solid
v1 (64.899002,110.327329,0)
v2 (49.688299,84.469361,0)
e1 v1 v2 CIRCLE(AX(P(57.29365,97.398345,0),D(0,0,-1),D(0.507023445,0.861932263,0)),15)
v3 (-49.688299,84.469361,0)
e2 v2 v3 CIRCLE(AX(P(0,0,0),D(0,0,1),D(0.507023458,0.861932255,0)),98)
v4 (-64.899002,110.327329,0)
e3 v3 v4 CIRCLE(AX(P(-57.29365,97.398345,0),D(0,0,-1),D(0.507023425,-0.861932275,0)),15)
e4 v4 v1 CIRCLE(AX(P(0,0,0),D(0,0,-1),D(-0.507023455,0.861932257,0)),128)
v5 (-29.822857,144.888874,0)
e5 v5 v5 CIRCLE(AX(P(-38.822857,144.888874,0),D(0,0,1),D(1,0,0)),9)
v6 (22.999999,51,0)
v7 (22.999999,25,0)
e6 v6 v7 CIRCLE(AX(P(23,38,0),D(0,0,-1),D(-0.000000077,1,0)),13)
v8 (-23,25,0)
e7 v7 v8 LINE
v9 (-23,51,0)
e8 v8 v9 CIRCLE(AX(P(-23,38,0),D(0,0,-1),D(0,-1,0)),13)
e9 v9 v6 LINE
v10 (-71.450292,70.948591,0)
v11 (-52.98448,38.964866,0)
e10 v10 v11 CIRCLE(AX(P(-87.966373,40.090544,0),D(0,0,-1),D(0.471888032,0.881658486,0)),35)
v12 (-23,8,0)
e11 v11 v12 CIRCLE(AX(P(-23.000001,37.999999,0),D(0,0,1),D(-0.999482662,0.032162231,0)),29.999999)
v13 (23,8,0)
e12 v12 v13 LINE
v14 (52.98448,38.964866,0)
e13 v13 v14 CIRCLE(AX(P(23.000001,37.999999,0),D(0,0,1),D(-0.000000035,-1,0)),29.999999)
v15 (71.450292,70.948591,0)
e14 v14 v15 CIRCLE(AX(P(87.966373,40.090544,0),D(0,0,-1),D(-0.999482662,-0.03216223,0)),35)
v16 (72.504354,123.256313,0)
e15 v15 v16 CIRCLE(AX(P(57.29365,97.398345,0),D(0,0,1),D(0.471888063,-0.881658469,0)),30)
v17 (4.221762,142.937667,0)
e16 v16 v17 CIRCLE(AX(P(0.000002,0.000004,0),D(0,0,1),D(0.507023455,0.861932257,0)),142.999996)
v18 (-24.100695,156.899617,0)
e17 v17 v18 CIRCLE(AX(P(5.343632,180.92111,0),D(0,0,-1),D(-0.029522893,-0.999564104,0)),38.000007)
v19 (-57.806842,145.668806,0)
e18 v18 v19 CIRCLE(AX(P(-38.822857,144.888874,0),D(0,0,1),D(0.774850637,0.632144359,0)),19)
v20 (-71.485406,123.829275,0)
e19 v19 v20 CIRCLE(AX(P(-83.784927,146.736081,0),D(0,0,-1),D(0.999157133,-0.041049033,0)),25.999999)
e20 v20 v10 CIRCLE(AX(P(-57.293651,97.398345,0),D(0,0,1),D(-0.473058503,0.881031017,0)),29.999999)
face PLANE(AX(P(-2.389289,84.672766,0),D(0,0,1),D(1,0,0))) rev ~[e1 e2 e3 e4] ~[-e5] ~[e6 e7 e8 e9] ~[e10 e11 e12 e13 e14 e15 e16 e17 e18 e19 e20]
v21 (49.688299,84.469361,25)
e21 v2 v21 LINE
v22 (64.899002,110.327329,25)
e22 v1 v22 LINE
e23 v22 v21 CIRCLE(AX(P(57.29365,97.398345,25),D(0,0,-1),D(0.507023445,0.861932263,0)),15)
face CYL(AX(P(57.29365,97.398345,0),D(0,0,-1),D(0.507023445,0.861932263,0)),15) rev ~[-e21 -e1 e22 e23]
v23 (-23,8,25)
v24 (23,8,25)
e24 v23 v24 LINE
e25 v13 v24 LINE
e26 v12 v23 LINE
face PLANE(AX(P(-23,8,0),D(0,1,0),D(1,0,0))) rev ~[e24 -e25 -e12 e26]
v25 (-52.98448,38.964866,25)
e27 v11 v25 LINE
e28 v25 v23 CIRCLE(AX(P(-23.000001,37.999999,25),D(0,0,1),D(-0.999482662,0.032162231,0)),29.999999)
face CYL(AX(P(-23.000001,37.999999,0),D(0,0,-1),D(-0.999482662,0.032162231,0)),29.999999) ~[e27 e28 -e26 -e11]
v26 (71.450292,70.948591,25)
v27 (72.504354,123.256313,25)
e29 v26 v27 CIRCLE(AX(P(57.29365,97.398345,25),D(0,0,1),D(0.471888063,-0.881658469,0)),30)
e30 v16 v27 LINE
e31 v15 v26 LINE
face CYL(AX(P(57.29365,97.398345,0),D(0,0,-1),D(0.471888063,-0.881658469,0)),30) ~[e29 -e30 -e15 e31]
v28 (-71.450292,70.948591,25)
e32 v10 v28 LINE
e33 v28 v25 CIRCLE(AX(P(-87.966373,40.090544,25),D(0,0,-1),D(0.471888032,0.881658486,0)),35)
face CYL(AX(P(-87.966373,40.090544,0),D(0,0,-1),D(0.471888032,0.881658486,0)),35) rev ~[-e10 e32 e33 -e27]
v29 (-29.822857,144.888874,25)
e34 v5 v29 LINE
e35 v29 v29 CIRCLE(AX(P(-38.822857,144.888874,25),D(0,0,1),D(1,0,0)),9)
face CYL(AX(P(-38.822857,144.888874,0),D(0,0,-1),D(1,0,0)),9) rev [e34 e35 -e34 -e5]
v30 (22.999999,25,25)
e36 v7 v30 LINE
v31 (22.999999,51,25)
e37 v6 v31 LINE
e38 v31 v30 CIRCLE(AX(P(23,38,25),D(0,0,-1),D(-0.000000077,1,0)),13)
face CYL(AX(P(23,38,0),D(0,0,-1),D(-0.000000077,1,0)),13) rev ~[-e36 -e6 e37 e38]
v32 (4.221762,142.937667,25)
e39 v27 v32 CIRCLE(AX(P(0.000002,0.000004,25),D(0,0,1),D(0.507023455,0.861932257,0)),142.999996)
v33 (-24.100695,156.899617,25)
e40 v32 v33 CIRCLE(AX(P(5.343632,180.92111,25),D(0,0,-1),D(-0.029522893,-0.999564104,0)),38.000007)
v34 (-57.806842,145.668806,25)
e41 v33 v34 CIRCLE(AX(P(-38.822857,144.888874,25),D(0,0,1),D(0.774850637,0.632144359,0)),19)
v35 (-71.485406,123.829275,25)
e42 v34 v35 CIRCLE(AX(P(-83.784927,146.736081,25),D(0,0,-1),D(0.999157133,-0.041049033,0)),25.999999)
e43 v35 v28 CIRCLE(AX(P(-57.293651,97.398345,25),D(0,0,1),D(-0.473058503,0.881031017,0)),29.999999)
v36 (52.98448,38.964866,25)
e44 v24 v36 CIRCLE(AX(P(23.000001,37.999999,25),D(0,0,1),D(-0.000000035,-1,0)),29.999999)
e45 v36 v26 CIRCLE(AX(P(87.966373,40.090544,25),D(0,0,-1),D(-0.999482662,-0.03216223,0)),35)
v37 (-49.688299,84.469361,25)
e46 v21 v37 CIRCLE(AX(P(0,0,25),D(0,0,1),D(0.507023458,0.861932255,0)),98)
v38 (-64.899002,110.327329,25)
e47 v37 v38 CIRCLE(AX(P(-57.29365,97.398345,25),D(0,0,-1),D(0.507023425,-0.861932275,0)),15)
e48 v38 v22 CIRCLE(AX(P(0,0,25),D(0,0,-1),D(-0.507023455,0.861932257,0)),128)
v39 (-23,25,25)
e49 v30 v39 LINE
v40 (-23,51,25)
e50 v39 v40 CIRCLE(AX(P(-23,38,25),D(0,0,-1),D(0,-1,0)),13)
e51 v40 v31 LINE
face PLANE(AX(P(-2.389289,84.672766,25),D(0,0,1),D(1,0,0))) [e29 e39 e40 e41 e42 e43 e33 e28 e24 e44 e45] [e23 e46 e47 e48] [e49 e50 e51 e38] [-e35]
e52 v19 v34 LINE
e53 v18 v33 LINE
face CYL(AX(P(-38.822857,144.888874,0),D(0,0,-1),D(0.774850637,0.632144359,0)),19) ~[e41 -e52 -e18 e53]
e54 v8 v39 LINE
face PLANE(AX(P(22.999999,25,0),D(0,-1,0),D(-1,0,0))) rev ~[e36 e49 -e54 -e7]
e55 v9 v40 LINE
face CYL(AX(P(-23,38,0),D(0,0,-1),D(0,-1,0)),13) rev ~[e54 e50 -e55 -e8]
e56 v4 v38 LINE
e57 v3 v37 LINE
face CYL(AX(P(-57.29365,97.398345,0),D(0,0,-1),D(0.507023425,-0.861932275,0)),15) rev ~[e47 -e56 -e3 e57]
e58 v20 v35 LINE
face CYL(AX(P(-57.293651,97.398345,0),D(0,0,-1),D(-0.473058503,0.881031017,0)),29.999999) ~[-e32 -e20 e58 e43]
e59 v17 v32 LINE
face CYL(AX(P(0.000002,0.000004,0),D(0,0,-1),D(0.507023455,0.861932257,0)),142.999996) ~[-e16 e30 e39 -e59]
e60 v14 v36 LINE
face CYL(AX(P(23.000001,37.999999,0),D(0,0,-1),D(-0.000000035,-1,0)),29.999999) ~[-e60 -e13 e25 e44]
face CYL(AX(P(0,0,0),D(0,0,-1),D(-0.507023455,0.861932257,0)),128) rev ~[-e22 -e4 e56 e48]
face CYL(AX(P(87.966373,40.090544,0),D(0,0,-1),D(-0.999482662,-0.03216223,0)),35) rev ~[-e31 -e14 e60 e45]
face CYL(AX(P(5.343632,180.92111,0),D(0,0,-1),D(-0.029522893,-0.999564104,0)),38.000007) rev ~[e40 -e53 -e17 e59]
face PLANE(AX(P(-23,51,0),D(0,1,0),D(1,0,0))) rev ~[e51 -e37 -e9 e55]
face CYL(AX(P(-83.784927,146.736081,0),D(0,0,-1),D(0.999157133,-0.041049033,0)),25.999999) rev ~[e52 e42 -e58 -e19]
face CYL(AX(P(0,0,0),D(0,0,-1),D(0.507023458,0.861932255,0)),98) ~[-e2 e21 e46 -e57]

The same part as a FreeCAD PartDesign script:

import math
import FreeCAD as App
import Part
import Sketcher
from FreeCAD import Vector

doc = App.newDocument("Part")
body = doc.addObject("PartDesign::Body", "Body")

# Sketch on XY plane
sketch1 = doc.addObject("Sketcher::SketchObject", "Sketch")
body.addObject(sketch1)
sketch1.AttachmentSupport = (doc.XY_Plane, [""])
sketch1.MapMode = "FlatFace"
sketch1.addGeometry(Part.ArcOfCircle(Part.Circle(Vector(-38.822857, 144.888874, 0), Vector(0, 0, 1), 19), math.radians(39.208507), math.radians(177.647403)), False)
sketch1.addGeometry(Part.ArcOfCircle(Part.Circle(Vector(-83.784927, 146.736081, 0), Vector(0, 0, 1), 25.999999), math.radians(-61.766985), math.radians(-2.352597)), False)
sketch1.addGeometry(Part.ArcOfCircle(Part.Circle(Vector(-57.293651, 97.398345, 0), Vector(0, 0, 1), 29.999999), math.radians(118.233014), math.radians(241.843077)), False)
sketch1.addGeometry(Part.ArcOfCircle(Part.Circle(Vector(-87.966373, 40.090544, 0), Vector(0, 0, 1), 35), math.radians(-1.843078), math.radians(61.843077)), False)
sketch1.addGeometry(Part.ArcOfCircle(Part.Circle(Vector(-23.000001, 37.999999, 0), Vector(0, 0, 1), 29.999999), math.radians(178.156922), math.radians(270.000002)), False)
sketch1.addGeometry(Part.LineSegment(Vector(-23, 8, 0), Vector(23, 8, 0)), False)
sketch1.addGeometry(Part.ArcOfCircle(Part.Circle(Vector(23.000001, 37.999999, 0), Vector(0, 0, 1), 29.999999), math.radians(-90.000002), math.radians(1.843078)), False)
sketch1.addGeometry(Part.ArcOfCircle(Part.Circle(Vector(87.966373, 40.090544, 0), Vector(0, 0, 1), 35), math.radians(118.156923), math.radians(181.843078)), False)
sketch1.addGeometry(Part.ArcOfCircle(Part.Circle(Vector(57.29365, 97.398345, 0), Vector(0, 0, 1), 30), math.radians(-61.843075), math.radians(59.534233)), False)
sketch1.addGeometry(Part.ArcOfCircle(Part.Circle(Vector(0.000002, 0.000004, 0), Vector(0, 0, 1), 142.999996), math.radians(59.534234), math.radians(88.308222)), False)
sketch1.addGeometry(Part.ArcOfCircle(Part.Circle(Vector(5.343632, 180.92111, 0), Vector(0, 0, 1), 38.000007), math.radians(-140.791487), math.radians(-91.691783)), False)
sketch1.addGeometry(Part.ArcOfCircle(Part.Circle(Vector(-23, 38, 0), Vector(0, 0, 1), 13), math.radians(90), math.radians(270)), False)
sketch1.addGeometry(Part.LineSegment(Vector(-23, 51, 0), Vector(22.999999, 51, 0)), False)
sketch1.addGeometry(Part.ArcOfCircle(Part.Circle(Vector(23, 38, 0), Vector(0, 0, 1), 13), math.radians(-90.000004), math.radians(90.000004)), False)
sketch1.addGeometry(Part.LineSegment(Vector(22.999999, 25, 0), Vector(-23, 25, 0)), False)
sketch1.addGeometry(Part.Circle(Vector(-38.822857, 144.888874, 0), Vector(0, 0, 1), 9), False)
sketch1.addGeometry(Part.ArcOfCircle(Part.Circle(Vector(0, 0, 0), Vector(0, 0, 1), 98), math.radians(59.534234), math.radians(120.465766)), False)
sketch1.addGeometry(Part.ArcOfCircle(Part.Circle(Vector(-57.29365, 97.398345, 0), Vector(0, 0, 1), 15), math.radians(120.465766), math.radians(300.465764)), False)
sketch1.addGeometry(Part.ArcOfCircle(Part.Circle(Vector(0, 0, 0), Vector(0, 0, 1), 128), math.radians(59.534234), math.radians(120.465766)), False)
sketch1.addGeometry(Part.ArcOfCircle(Part.Circle(Vector(57.29365, 97.398345, 0), Vector(0, 0, 1), 15), math.radians(-120.465764), math.radians(59.534234)), False)
sketch1.addConstraint(Sketcher.Constraint("Tangent", 0, 2, 1, 2))
sketch1.addConstraint(Sketcher.Constraint("Tangent", 1, 1, 2, 1))
sketch1.addConstraint(Sketcher.Constraint("Tangent", 2, 2, 3, 2))
sketch1.addConstraint(Sketcher.Constraint("Tangent", 3, 1, 4, 1))
sketch1.addConstraint(Sketcher.Constraint("Tangent", 4, 2, 5, 1))
sketch1.addConstraint(Sketcher.Constraint("Tangent", 5, 2, 6, 1))
sketch1.addConstraint(Sketcher.Constraint("Tangent", 6, 2, 7, 2))
sketch1.addConstraint(Sketcher.Constraint("Tangent", 7, 1, 8, 1))
sketch1.addConstraint(Sketcher.Constraint("Tangent", 8, 2, 9, 1))
sketch1.addConstraint(Sketcher.Constraint("Tangent", 9, 2, 10, 2))
sketch1.addConstraint(Sketcher.Constraint("Tangent", 10, 1, 0, 1))
sketch1.addConstraint(Sketcher.Constraint("Tangent", 11, 1, 12, 1))
sketch1.addConstraint(Sketcher.Constraint("Tangent", 12, 2, 13, 2))
sketch1.addConstraint(Sketcher.Constraint("Tangent", 13, 1, 14, 1))
sketch1.addConstraint(Sketcher.Constraint("Tangent", 14, 2, 11, 2))
sketch1.addConstraint(Sketcher.Constraint("Tangent", 16, 2, 17, 2))
sketch1.addConstraint(Sketcher.Constraint("Tangent", 17, 1, 18, 2))
sketch1.addConstraint(Sketcher.Constraint("Tangent", 18, 1, 19, 2))
sketch1.addConstraint(Sketcher.Constraint("Tangent", 19, 1, 16, 1))
sketch1.addConstraint(Sketcher.Constraint("Horizontal", 5))
sketch1.addConstraint(Sketcher.Constraint("Horizontal", 12))
sketch1.addConstraint(Sketcher.Constraint("Horizontal", 14))
sketch1.addConstraint(Sketcher.Constraint("Coincident", 9, 3, -1, 1))
sketch1.addConstraint(Sketcher.Constraint("Coincident", 16, 3, -1, 1))
sketch1.addConstraint(Sketcher.Constraint("Coincident", 18, 3, -1, 1))
sketch1.addConstraint(Sketcher.Constraint("Coincident", 11, 3, 4, 3))
sketch1.addConstraint(Sketcher.Constraint("Coincident", 13, 3, 6, 3))
sketch1.addConstraint(Sketcher.Constraint("Coincident", 15, 3, 0, 3))
sketch1.addConstraint(Sketcher.Constraint("Coincident", 17, 3, 2, 3))
sketch1.addConstraint(Sketcher.Constraint("Coincident", 19, 3, 8, 3))
sketch1.addConstraint(Sketcher.Constraint("Equal", 2, 4))
sketch1.addConstraint(Sketcher.Constraint("Equal", 3, 7))
sketch1.addConstraint(Sketcher.Constraint("Equal", 6, 8))
sketch1.addConstraint(Sketcher.Constraint("Symmetric", 3, 3, 7, 3, -2))
sketch1.addConstraint(Sketcher.Constraint("Diameter", 15, 18.0))
sketch1.addConstraint(Sketcher.Constraint("Radius", 0, 19.0))
sketch1.addConstraint(Sketcher.Constraint("Radius", 1, 25.999999))
sketch1.addConstraint(Sketcher.Constraint("Radius", 2, 29.999999))
sketch1.addConstraint(Sketcher.Constraint("Radius", 3, 35.0))
sketch1.addConstraint(Sketcher.Constraint("Radius", 11, 13.0))
sketch1.addConstraint(Sketcher.Constraint("Radius", 16, 98.0))
sketch1.addConstraint(Sketcher.Constraint("Radius", 17, 15.0))
sketch1.addConstraint(Sketcher.Constraint("DistanceX", 5, 1, 5, 2, 46.0))
sketch1.addConstraint(Sketcher.Constraint("DistanceY", -1, 1, 4, 3, 37.999999))
sketch1.addConstraint(Sketcher.Constraint("DistanceX", 17, 1, -1, 1, 64.899002))
sketch1.addConstraint(Sketcher.Constraint("Radius", 10, 38.000007))
sketch1.addConstraint(Sketcher.Constraint("DistanceY", 1, 1, 15, 3, 21.059599))
sketch1.addConstraint(Sketcher.Constraint("DistanceY", -1, 1, 1, 3, 146.736081))
pad1 = doc.addObject("PartDesign::Pad", "Pad")
body.addObject(pad1)
pad1.Profile = sketch1
pad1.Length = 25

doc.recompute()
